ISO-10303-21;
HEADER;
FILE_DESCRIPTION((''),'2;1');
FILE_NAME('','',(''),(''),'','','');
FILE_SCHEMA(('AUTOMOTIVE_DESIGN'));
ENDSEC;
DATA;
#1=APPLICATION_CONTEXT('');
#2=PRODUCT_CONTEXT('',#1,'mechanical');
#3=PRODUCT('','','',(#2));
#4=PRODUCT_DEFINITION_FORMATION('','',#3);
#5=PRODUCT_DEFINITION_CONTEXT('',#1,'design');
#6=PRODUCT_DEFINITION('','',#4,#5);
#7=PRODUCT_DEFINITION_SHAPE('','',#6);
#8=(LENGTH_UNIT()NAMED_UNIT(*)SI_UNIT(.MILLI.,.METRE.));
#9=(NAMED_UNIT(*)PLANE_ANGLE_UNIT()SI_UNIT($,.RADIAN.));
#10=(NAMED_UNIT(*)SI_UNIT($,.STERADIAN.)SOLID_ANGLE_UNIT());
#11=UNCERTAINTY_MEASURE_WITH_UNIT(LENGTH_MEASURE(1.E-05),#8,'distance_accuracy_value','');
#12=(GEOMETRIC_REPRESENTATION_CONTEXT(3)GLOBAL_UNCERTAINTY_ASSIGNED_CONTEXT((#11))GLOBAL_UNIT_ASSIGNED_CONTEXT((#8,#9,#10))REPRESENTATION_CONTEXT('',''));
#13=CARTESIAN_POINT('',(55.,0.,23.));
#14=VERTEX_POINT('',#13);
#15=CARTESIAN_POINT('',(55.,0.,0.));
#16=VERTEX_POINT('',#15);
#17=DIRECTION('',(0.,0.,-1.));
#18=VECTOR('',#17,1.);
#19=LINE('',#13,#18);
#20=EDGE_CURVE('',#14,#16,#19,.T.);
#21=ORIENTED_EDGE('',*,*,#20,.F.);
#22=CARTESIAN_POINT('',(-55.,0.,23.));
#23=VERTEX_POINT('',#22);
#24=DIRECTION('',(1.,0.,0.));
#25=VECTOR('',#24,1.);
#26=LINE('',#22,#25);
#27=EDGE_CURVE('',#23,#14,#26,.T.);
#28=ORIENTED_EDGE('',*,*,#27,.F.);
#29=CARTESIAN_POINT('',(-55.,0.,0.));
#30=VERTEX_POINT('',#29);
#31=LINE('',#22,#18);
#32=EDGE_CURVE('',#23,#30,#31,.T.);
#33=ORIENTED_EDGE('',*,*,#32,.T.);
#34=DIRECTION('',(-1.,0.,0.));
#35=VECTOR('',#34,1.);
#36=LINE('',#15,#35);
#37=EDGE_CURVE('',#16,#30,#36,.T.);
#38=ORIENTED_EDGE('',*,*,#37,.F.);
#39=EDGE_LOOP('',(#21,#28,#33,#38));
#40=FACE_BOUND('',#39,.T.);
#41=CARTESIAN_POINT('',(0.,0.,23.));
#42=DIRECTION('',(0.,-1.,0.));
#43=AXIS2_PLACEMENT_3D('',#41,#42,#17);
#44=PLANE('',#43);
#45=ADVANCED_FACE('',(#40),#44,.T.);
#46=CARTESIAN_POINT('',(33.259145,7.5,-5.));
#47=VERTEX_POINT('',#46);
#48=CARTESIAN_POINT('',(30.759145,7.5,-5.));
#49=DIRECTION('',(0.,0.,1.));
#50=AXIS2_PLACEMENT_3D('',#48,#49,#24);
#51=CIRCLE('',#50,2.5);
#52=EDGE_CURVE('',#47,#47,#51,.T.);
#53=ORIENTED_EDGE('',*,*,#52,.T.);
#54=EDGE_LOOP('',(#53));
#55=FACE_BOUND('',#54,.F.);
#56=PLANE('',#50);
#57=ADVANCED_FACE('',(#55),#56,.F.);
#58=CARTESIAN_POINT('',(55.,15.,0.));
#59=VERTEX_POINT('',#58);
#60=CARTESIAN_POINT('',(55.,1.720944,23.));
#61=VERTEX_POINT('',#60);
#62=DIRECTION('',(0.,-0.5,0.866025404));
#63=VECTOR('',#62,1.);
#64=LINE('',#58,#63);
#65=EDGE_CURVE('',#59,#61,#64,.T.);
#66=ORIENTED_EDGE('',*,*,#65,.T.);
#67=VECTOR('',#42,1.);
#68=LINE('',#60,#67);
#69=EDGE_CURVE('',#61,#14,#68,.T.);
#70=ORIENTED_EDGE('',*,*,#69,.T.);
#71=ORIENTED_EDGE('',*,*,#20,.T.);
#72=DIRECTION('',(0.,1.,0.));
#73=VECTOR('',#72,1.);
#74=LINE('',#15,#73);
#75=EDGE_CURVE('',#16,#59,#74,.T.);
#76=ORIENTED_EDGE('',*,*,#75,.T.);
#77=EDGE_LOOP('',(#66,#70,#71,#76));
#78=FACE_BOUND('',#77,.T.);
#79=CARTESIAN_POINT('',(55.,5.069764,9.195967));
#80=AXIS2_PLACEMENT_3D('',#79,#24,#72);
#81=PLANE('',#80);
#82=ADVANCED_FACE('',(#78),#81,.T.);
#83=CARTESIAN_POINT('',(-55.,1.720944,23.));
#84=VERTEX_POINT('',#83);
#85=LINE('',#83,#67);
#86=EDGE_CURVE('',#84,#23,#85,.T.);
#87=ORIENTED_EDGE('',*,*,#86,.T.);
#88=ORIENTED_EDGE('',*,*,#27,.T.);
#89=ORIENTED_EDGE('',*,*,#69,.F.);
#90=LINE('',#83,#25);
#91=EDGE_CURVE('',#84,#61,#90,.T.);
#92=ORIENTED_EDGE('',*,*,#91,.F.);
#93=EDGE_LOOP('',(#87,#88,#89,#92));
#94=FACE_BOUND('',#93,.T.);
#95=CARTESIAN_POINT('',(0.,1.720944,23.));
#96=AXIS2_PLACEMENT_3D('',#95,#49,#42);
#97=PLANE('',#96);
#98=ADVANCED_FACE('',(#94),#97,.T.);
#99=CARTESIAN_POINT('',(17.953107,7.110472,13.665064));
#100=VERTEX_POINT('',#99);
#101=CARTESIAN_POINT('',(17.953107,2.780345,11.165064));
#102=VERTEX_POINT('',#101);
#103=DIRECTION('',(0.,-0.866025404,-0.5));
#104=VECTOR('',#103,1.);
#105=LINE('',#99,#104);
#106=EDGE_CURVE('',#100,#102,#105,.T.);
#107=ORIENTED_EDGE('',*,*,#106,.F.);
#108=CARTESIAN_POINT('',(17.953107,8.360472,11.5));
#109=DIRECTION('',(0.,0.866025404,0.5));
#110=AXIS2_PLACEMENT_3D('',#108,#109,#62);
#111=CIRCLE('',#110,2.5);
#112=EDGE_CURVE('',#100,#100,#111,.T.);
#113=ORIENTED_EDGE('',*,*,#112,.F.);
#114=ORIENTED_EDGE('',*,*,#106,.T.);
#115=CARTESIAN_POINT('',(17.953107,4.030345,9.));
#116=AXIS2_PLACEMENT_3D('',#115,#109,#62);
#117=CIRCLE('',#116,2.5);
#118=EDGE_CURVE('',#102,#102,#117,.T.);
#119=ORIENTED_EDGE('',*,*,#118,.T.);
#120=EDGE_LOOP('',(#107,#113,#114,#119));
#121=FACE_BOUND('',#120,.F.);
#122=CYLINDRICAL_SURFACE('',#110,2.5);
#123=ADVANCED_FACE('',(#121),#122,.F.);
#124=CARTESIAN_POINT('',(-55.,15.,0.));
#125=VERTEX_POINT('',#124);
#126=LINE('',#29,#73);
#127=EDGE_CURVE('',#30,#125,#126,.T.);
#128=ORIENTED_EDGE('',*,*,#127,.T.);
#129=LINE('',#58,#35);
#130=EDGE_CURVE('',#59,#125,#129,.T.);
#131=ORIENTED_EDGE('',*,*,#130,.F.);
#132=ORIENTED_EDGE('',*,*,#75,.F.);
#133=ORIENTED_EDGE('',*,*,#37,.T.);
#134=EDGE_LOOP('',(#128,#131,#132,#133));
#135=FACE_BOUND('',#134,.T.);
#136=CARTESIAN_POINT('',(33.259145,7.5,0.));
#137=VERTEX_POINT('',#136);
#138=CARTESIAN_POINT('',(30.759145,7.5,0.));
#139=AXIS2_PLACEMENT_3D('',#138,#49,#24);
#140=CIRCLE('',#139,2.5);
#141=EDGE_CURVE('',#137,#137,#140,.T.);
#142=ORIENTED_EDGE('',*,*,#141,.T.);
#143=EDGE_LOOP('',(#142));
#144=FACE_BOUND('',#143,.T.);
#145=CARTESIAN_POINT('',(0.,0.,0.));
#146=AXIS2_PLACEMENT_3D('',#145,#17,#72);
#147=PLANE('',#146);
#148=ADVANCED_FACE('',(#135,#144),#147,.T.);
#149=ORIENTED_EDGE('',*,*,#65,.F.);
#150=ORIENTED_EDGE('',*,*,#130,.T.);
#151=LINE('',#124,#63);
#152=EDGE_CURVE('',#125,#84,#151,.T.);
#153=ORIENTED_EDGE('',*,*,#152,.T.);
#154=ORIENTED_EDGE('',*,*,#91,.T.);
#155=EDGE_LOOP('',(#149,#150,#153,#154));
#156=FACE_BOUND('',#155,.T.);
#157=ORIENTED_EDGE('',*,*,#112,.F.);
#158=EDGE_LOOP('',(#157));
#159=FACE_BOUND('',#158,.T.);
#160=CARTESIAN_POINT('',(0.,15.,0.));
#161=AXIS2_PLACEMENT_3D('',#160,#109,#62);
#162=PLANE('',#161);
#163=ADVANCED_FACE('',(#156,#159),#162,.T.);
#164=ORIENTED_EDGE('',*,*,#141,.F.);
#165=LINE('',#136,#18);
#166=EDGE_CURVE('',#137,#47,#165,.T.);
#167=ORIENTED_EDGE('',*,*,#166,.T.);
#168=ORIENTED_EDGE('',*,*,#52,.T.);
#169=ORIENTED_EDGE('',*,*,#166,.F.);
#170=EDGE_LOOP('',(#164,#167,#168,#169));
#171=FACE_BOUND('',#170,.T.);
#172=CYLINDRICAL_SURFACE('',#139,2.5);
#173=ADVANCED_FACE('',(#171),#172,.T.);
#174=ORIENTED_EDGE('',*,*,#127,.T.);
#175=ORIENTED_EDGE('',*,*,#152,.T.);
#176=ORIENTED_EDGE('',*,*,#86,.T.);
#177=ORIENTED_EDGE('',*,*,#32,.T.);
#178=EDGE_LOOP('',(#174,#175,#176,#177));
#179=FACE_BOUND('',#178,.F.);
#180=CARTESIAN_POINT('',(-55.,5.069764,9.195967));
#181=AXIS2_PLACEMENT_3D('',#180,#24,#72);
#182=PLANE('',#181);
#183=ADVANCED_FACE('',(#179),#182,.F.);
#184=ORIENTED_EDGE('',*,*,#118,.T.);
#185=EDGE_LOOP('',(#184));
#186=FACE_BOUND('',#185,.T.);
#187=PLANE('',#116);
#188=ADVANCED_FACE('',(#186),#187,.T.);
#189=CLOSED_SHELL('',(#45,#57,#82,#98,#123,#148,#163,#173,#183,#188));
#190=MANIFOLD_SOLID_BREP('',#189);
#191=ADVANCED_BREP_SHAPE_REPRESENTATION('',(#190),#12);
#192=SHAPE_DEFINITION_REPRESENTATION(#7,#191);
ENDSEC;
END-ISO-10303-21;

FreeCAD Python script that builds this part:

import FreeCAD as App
import Part
import Sketcher

V = App.Vector
Q = App.Units.Quantity

doc = App.newDocument("Part")
body = doc.addObject("PartDesign::Body", "Body")

# Sketch on YZ plane
sketch1 = body.newObject("Sketcher::SketchObject", "Sketch")
sketch1.AttachmentSupport = (doc.getObject("YZ_Plane"), [""])
sketch1.MapMode = "FlatFace"
sketch1.addGeometry([
    Part.LineSegment(V(0, 0, 0), V(-13.3, 23, 0)),
    Part.LineSegment(V(-13.3, 23, 0), V(-15, 23, 0)),
    Part.LineSegment(V(-15, 23, 0), V(-15, 0, 0)),
    Part.LineSegment(V(-15, 0, 0), V(0, 0, 0)),
], False)
sketch1.addConstraint([
    Sketcher.Constraint("Coincident", 0, 2, 1, 1),
    Sketcher.Constraint("Coincident", 1, 2, 2, 1),
    Sketcher.Constraint("Coincident", 2, 2, 3, 1),
    Sketcher.Constraint("Coincident", 3, 2, 0, 1),
    Sketcher.Constraint("Horizontal", 1),
    Sketcher.Constraint("Vertical", 2),
    Sketcher.Constraint("Horizontal", 3),
    Sketcher.Constraint("Coincident", 3, 2, -1, 1),
    Sketcher.Constraint("DistanceX", 3, 1, 3, 2, Q("15 mm")),
    Sketcher.Constraint("DistanceY", 2, 2, 2, 1, Q("23 mm")),
    Sketcher.Constraint("Angle", 0, Q("120 deg")),
])
pad1 = body.newObject("PartDesign::Pad", "Pad")
pad1.Profile = sketch1
pad1.Length = 110
pad1.Midplane = True

# Sketch on XY plane
sketch2 = body.newObject("Sketcher::SketchObject", "Sketch001")
sketch2.AttachmentSupport = (doc.getObject("XY_Plane"), [""])
sketch2.MapMode = "FlatFace"
sketch2.addGeometry(Part.Circle(V(30.8, -7.5, 0), V(0, 0, 1), 2.5), False)
sketch2.addConstraint([
    Sketcher.Constraint("Diameter", 0, Q("5 mm")),
    Sketcher.Constraint("DistanceY", 0, 3, -1, 1, Q("7.5 mm")),
    Sketcher.Constraint("DistanceX", -1, 1, 0, 3, Q("30.759145 mm")),
])
pad2 = body.newObject("PartDesign::Pad", "Pad001")
pad2.Profile = sketch2
pad2.Length = 5
pad2.Reversed = True

# Sketch on an angled plane
sketch3 = body.newObject("Sketcher::SketchObject", "Sketch002")
sketch3.Placement = App.Placement(V(0, 0, 0), App.Rotation(V(0, -0.5, 0.866025404), V(1, 0, 0), V(0, 0.866025404, 0.5), "ZXY"))
sketch3.addGeometry(Part.Circle(V(13.3, 18, 0), V(0, 0, 1), 2.5), False)
sketch3.addConstraint([
    Sketcher.Constraint("Diameter", 0, Q("5 mm")),
    Sketcher.Constraint("DistanceX", -1, 1, 0, 3, Q("13.279056 mm")),
    Sketcher.Constraint("DistanceY", -1, 1, 0, 3, Q("17.953108 mm")),
])
pocket1 = body.newObject("PartDesign::Pocket", "Pocket")
pocket1.Profile = sketch3
pocket1.Length = 5
body2 = doc.addObject("PartDesign::Body", "Body001")
doc.recompute()

body.Placement = App.Placement(V(0, 15, 0), App.Rotation(V(0, 0, 1), 0))
boolean = body2.newObject("PartDesign::Boolean", "Boolean")
boolean.Type = "Fuse"
boolean.addObjects([body])

doc.recompute()
